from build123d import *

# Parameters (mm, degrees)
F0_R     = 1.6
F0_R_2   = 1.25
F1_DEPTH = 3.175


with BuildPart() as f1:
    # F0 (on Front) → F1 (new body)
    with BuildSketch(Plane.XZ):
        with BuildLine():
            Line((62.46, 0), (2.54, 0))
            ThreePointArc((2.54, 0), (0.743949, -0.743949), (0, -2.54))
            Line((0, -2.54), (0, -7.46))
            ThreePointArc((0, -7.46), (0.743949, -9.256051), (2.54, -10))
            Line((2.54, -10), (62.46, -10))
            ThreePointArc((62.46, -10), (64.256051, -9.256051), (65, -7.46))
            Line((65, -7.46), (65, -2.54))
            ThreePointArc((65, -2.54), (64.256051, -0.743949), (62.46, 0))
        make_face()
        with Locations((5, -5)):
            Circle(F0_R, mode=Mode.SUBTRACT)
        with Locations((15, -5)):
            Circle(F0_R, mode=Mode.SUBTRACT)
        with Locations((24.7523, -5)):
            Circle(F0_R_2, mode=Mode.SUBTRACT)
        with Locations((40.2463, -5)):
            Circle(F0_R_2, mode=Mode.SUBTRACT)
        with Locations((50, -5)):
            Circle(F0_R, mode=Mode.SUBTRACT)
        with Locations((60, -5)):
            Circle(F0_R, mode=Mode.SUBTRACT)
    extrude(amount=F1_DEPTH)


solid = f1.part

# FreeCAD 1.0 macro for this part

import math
import FreeCAD as App
import Part
import Sketcher
from FreeCAD import Vector
Q = App.Units.Quantity

doc = App.newDocument("Part")
params = doc.addObject("Spreadsheet::Sheet", "Params")
for row, (alias, value) in enumerate([
    ("sketch1_diameter", "3.2 mm"),
    ("sketch1_diameter2", "2.5 mm"),
    ("sketch1_radius", "2.540001 mm"),
    ("pad1_length", "3.175 mm"),
], start=1):
    params.set(f"A{row}", alias)
    params.set(f"B{row}", "=" + value)
    params.setAlias(f"B{row}", alias)

body = doc.addObject("PartDesign::Body", "Body")

# Sketch on XZ plane
sketch1 = doc.addObject("Sketcher::SketchObject", "Sketch")
body.addObject(sketch1)
sketch1.AttachmentSupport = (doc.XZ_Plane, [""])
sketch1.MapMode = "FlatFace"
sketch1.addGeometry(Part.LineSegment(Vector(62.5, 0, 0), Vector(2.5, 0, 0)), False)
sketch1.addGeometry(Part.ArcOfCircle(Part.Circle(Vector(2.5, -2.5, 0), Vector(0, 0, 1), 2.5), math.radians(90), math.radians(180)), False)
sketch1.addGeometry(Part.LineSegment(Vector(0, -2.5, 0), Vector(0, -7.5, 0)), False)
sketch1.addGeometry(Part.ArcOfCircle(Part.Circle(Vector(2.5, -7.5, 0), Vector(0, 0, 1), 2.5), math.radians(-180), math.radians(-90)), False)
sketch1.addGeometry(Part.LineSegment(Vector(2.5, -10, 0), Vector(62.5, -10, 0)), False)
sketch1.addGeometry(Part.ArcOfCircle(Part.Circle(Vector(62.5, -7.5, 0), Vector(0, 0, 1), 2.5), math.radians(-90), math.radians(0)), False)
sketch1.addGeometry(Part.LineSegment(Vector(65, -7.5, 0), Vector(65, -2.5, 0)), False)
sketch1.addGeometry(Part.ArcOfCircle(Part.Circle(Vector(62.5, -2.5, 0), Vector(0, 0, 1), 2.5), math.radians(0), math.radians(90)), False)
sketch1.addGeometry(Part.Circle(Vector(5, -5, 0), Vector(0, 0, 1), 1.6), False)
sketch1.addGeometry(Part.Circle(Vector(15, -5, 0), Vector(0, 0, 1), 1.6), False)
sketch1.addGeometry(Part.Circle(Vector(24.8, -5, 0), Vector(0, 0, 1), 1.2), False)
sketch1.addGeometry(Part.Circle(Vector(40.2, -5, 0), Vector(0, 0, 1), 1.2), False)
sketch1.addGeometry(Part.Circle(Vector(50, -5, 0), Vector(0, 0, 1), 1.6), False)
sketch1.addGeometry(Part.Circle(Vector(60, -5, 0), Vector(0, 0, 1), 1.6), False)
sketch1.addConstraint(Sketcher.Constraint("Tangent", 0, 2, 1, 1))
sketch1.addConstraint(Sketcher.Constraint("Tangent", 1, 2, 2, 1))
sketch1.addConstraint(Sketcher.Constraint("Tangent", 2, 2, 3, 1))
sketch1.addConstraint(Sketcher.Constraint("Tangent", 3, 2, 4, 1))
sketch1.addConstraint(Sketcher.Constraint("Tangent", 4, 2, 5, 1))
sketch1.addConstraint(Sketcher.Constraint("Tangent", 5, 2, 6, 1))
sketch1.addConstraint(Sketcher.Constraint("Tangent", 6, 2, 7, 1))
sketch1.addConstraint(Sketcher.Constraint("Tangent", 7, 2, 0, 1))
sketch1.addConstraint(Sketcher.Constraint("Horizontal", 0))
sketch1.addConstraint(Sketcher.Constraint("Vertical", 2))
sketch1.addConstraint(Sketcher.Constraint("Horizontal", 4))
sketch1.addConstraint(Sketcher.Constraint("Vertical", 6))
sketch1.addConstraint(Sketcher.Constraint("Equal", 1, 3))
sketch1.addConstraint(Sketcher.Constraint("Equal", 3, 5))
sketch1.addConstraint(Sketcher.Constraint("Equal", 5, 7))
sketch1.addConstraint(Sketcher.Constraint("Equal", 8, 9))
sketch1.addConstraint(Sketcher.Constraint("Equal", 10, 11))
sketch1.addConstraint(Sketcher.Constraint("Equal", 9, 12))
sketch1.addConstraint(Sketcher.Constraint("Equal", 12, 13))
sketch1.addConstraint(Sketcher.Constraint("PointOnObject", 0, 2, -1))
sketch1.addConstraint(Sketcher.Constraint("PointOnObject", 1, 2, -2))
sketch1.addConstraint(Sketcher.Constraint("Horizontal", 8, 3, 9, 3))
sketch1.addConstraint(Sketcher.Constraint("Horizontal", 9, 3, 10, 3))
sketch1.addConstraint(Sketcher.Constraint("Horizontal", 10, 3, 11, 3))
sketch1.addConstraint(Sketcher.Constraint("Horizontal", 11, 3, 12, 3))
sketch1.addConstraint(Sketcher.Constraint("Horizontal", 12, 3, 13, 3))
sketch1.addConstraint(Sketcher.Constraint("Diameter", 8, Q("3.2 mm")))
sketch1.addConstraint(Sketcher.Constraint("Diameter", 10, Q("2.5 mm")))
sketch1.addConstraint(Sketcher.Constraint("Radius", 1, Q("2.540001 mm")))
sketch1.addConstraint(Sketcher.Constraint("DistanceX", -1, 1, 8, 3, Q("5 mm")))
sketch1.addConstraint(Sketcher.Constraint("DistanceY", 8, 3, -1, 1, Q("5 mm")))
sketch1.addConstraint(Sketcher.Constraint("DistanceX", -1, 1, 9, 3, Q("15 mm")))
sketch1.addConstraint(Sketcher.Constraint("DistanceX", -1, 1, 12, 3, Q("50 mm")))
sketch1.addConstraint(Sketcher.Constraint("DistanceX", -1, 1, 13, 3, Q("60 mm")))
sketch1.addConstraint(Sketcher.Constraint("DistanceY", 3, 2, -1, 1, Q("10 mm")))
sketch1.addConstraint(Sketcher.Constraint("DistanceX", -1, 1, 5, 2, Q("65 mm")))
sketch1.addConstraint(Sketcher.Constraint("DistanceX", 10, 3, 11, 3, Q("15.494 mm")))
sketch1.addConstraint(Sketcher.Constraint("DistanceX", -1, 1, 10, 3, Q("24.7523 mm")))
sketch1.setExpression("Constraints[26]", "Params.sketch1_diameter")
sketch1.setExpression("Constraints[27]", "Params.sketch1_diameter2")
sketch1.setExpression("Constraints[28]", "Params.sketch1_radius")
pad1 = doc.addObject("PartDesign::Pad", "Pad")
body.addObject(pad1)
pad1.Profile = sketch1
pad1.setExpression("Length", "Params.pad1_length")

doc.recompute()
